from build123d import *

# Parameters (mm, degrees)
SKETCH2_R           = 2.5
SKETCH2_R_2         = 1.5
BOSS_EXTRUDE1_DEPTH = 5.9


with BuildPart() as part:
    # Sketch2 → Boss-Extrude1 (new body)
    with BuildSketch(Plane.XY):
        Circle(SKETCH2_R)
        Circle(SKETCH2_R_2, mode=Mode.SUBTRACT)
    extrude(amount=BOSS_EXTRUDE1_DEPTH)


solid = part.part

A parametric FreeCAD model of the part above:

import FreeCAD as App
import Part
import Sketcher
from FreeCAD import Vector
Q = App.Units.Quantity

doc = App.newDocument("Part")
body = doc.addObject("PartDesign::Body", "Body")

sketch1 = body.newObject("Sketcher::SketchObject", "Sketch")
sketch1.AttachmentSupport = (doc.getObject("XY_Plane"), [""])
sketch1.MapMode = "FlatFace"
sketch1.addGeometry([
    Part.Circle(Vector(0, 0, 0), Vector(0, 0, 1), 2.5),
    Part.Circle(Vector(0, 0, 0), Vector(0, 0, 1), 1.5),
], False)
sketch1.addConstraint([
    Sketcher.Constraint("Coincident", 0, 3, -1, 1),
    Sketcher.Constraint("Coincident", 1, 3, -1, 1),
    Sketcher.Constraint("Diameter", 0, Q("5 mm")),
    Sketcher.Constraint("Diameter", 1, Q("3 mm")),
])
pad1 = body.newObject("PartDesign::Pad", "Pad")
pad1.Profile = sketch1
pad1.Length = 5.9

doc.recompute()
